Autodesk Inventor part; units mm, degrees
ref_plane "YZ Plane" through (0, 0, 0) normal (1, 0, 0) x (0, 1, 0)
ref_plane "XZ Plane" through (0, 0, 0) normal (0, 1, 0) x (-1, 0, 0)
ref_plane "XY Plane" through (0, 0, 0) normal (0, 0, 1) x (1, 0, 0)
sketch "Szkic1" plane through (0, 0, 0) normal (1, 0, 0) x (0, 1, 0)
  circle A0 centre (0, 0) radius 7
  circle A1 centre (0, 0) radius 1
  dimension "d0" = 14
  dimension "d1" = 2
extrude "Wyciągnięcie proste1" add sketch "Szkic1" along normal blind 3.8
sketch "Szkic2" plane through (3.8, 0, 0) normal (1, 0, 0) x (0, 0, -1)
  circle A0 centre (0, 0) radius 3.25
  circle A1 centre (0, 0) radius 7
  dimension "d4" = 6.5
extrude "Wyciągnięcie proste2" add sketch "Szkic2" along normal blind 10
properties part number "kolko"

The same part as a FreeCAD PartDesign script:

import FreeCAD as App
import Part
import Sketcher

doc = App.newDocument("Part")
body = doc.addObject("PartDesign::Body", "Body")

# Sketch on YZ plane
sketch1 = body.newObject("Sketcher::SketchObject", "Sketch")
sketch1.AttachmentSupport = (doc.getObject("YZ_Plane"), [""])
sketch1.MapMode = "FlatFace"
sketch1.addGeometry([
    Part.Circle(App.Vector(0, 0, 0), App.Vector(0, 0, 1), 7),
    Part.Circle(App.Vector(0, 0, 0), App.Vector(0, 0, 1), 1),
], False)
sketch1.addConstraint([
    Sketcher.Constraint("Coincident", 0, 3, -1, 1),
    Sketcher.Constraint("Coincident", 1, 3, -1, 1),
    Sketcher.Constraint("Diameter", 0, 14.0),
    Sketcher.Constraint("Diameter", 1, 2.0),
])
pad1 = body.newObject("PartDesign::Pad", "Pad")
pad1.Profile = sketch1
pad1.Length = 3.8

# Sketch on YZ plane
sketch2 = body.newObject("Sketcher::SketchObject", "Sketch001")
sketch2.AttachmentSupport = (doc.getObject("YZ_Plane"), [""])
sketch2.MapMode = "FlatFace"
sketch2.AttachmentOffset = App.Placement(App.Vector(0, 0, 3.8), App.Rotation())
sketch2.addGeometry([
    Part.Circle(App.Vector(0, 0, 0), App.Vector(0, 0, 1), 7),
    Part.Circle(App.Vector(0, 0, 0), App.Vector(0, 0, 1), 3.25),
], False)
sketch2.addConstraint([
    Sketcher.Constraint("Coincident", 0, 3, -1, 1),
    Sketcher.Constraint("Coincident", 1, 3, -1, 1),
    Sketcher.Constraint("Diameter", 1, 6.5),
    Sketcher.Constraint("Diameter", 0, 14.0),
])
pad2 = body.newObject("PartDesign::Pad", "Pad001")
pad2.Profile = sketch2
pad2.Length = 10

doc.recompute()
